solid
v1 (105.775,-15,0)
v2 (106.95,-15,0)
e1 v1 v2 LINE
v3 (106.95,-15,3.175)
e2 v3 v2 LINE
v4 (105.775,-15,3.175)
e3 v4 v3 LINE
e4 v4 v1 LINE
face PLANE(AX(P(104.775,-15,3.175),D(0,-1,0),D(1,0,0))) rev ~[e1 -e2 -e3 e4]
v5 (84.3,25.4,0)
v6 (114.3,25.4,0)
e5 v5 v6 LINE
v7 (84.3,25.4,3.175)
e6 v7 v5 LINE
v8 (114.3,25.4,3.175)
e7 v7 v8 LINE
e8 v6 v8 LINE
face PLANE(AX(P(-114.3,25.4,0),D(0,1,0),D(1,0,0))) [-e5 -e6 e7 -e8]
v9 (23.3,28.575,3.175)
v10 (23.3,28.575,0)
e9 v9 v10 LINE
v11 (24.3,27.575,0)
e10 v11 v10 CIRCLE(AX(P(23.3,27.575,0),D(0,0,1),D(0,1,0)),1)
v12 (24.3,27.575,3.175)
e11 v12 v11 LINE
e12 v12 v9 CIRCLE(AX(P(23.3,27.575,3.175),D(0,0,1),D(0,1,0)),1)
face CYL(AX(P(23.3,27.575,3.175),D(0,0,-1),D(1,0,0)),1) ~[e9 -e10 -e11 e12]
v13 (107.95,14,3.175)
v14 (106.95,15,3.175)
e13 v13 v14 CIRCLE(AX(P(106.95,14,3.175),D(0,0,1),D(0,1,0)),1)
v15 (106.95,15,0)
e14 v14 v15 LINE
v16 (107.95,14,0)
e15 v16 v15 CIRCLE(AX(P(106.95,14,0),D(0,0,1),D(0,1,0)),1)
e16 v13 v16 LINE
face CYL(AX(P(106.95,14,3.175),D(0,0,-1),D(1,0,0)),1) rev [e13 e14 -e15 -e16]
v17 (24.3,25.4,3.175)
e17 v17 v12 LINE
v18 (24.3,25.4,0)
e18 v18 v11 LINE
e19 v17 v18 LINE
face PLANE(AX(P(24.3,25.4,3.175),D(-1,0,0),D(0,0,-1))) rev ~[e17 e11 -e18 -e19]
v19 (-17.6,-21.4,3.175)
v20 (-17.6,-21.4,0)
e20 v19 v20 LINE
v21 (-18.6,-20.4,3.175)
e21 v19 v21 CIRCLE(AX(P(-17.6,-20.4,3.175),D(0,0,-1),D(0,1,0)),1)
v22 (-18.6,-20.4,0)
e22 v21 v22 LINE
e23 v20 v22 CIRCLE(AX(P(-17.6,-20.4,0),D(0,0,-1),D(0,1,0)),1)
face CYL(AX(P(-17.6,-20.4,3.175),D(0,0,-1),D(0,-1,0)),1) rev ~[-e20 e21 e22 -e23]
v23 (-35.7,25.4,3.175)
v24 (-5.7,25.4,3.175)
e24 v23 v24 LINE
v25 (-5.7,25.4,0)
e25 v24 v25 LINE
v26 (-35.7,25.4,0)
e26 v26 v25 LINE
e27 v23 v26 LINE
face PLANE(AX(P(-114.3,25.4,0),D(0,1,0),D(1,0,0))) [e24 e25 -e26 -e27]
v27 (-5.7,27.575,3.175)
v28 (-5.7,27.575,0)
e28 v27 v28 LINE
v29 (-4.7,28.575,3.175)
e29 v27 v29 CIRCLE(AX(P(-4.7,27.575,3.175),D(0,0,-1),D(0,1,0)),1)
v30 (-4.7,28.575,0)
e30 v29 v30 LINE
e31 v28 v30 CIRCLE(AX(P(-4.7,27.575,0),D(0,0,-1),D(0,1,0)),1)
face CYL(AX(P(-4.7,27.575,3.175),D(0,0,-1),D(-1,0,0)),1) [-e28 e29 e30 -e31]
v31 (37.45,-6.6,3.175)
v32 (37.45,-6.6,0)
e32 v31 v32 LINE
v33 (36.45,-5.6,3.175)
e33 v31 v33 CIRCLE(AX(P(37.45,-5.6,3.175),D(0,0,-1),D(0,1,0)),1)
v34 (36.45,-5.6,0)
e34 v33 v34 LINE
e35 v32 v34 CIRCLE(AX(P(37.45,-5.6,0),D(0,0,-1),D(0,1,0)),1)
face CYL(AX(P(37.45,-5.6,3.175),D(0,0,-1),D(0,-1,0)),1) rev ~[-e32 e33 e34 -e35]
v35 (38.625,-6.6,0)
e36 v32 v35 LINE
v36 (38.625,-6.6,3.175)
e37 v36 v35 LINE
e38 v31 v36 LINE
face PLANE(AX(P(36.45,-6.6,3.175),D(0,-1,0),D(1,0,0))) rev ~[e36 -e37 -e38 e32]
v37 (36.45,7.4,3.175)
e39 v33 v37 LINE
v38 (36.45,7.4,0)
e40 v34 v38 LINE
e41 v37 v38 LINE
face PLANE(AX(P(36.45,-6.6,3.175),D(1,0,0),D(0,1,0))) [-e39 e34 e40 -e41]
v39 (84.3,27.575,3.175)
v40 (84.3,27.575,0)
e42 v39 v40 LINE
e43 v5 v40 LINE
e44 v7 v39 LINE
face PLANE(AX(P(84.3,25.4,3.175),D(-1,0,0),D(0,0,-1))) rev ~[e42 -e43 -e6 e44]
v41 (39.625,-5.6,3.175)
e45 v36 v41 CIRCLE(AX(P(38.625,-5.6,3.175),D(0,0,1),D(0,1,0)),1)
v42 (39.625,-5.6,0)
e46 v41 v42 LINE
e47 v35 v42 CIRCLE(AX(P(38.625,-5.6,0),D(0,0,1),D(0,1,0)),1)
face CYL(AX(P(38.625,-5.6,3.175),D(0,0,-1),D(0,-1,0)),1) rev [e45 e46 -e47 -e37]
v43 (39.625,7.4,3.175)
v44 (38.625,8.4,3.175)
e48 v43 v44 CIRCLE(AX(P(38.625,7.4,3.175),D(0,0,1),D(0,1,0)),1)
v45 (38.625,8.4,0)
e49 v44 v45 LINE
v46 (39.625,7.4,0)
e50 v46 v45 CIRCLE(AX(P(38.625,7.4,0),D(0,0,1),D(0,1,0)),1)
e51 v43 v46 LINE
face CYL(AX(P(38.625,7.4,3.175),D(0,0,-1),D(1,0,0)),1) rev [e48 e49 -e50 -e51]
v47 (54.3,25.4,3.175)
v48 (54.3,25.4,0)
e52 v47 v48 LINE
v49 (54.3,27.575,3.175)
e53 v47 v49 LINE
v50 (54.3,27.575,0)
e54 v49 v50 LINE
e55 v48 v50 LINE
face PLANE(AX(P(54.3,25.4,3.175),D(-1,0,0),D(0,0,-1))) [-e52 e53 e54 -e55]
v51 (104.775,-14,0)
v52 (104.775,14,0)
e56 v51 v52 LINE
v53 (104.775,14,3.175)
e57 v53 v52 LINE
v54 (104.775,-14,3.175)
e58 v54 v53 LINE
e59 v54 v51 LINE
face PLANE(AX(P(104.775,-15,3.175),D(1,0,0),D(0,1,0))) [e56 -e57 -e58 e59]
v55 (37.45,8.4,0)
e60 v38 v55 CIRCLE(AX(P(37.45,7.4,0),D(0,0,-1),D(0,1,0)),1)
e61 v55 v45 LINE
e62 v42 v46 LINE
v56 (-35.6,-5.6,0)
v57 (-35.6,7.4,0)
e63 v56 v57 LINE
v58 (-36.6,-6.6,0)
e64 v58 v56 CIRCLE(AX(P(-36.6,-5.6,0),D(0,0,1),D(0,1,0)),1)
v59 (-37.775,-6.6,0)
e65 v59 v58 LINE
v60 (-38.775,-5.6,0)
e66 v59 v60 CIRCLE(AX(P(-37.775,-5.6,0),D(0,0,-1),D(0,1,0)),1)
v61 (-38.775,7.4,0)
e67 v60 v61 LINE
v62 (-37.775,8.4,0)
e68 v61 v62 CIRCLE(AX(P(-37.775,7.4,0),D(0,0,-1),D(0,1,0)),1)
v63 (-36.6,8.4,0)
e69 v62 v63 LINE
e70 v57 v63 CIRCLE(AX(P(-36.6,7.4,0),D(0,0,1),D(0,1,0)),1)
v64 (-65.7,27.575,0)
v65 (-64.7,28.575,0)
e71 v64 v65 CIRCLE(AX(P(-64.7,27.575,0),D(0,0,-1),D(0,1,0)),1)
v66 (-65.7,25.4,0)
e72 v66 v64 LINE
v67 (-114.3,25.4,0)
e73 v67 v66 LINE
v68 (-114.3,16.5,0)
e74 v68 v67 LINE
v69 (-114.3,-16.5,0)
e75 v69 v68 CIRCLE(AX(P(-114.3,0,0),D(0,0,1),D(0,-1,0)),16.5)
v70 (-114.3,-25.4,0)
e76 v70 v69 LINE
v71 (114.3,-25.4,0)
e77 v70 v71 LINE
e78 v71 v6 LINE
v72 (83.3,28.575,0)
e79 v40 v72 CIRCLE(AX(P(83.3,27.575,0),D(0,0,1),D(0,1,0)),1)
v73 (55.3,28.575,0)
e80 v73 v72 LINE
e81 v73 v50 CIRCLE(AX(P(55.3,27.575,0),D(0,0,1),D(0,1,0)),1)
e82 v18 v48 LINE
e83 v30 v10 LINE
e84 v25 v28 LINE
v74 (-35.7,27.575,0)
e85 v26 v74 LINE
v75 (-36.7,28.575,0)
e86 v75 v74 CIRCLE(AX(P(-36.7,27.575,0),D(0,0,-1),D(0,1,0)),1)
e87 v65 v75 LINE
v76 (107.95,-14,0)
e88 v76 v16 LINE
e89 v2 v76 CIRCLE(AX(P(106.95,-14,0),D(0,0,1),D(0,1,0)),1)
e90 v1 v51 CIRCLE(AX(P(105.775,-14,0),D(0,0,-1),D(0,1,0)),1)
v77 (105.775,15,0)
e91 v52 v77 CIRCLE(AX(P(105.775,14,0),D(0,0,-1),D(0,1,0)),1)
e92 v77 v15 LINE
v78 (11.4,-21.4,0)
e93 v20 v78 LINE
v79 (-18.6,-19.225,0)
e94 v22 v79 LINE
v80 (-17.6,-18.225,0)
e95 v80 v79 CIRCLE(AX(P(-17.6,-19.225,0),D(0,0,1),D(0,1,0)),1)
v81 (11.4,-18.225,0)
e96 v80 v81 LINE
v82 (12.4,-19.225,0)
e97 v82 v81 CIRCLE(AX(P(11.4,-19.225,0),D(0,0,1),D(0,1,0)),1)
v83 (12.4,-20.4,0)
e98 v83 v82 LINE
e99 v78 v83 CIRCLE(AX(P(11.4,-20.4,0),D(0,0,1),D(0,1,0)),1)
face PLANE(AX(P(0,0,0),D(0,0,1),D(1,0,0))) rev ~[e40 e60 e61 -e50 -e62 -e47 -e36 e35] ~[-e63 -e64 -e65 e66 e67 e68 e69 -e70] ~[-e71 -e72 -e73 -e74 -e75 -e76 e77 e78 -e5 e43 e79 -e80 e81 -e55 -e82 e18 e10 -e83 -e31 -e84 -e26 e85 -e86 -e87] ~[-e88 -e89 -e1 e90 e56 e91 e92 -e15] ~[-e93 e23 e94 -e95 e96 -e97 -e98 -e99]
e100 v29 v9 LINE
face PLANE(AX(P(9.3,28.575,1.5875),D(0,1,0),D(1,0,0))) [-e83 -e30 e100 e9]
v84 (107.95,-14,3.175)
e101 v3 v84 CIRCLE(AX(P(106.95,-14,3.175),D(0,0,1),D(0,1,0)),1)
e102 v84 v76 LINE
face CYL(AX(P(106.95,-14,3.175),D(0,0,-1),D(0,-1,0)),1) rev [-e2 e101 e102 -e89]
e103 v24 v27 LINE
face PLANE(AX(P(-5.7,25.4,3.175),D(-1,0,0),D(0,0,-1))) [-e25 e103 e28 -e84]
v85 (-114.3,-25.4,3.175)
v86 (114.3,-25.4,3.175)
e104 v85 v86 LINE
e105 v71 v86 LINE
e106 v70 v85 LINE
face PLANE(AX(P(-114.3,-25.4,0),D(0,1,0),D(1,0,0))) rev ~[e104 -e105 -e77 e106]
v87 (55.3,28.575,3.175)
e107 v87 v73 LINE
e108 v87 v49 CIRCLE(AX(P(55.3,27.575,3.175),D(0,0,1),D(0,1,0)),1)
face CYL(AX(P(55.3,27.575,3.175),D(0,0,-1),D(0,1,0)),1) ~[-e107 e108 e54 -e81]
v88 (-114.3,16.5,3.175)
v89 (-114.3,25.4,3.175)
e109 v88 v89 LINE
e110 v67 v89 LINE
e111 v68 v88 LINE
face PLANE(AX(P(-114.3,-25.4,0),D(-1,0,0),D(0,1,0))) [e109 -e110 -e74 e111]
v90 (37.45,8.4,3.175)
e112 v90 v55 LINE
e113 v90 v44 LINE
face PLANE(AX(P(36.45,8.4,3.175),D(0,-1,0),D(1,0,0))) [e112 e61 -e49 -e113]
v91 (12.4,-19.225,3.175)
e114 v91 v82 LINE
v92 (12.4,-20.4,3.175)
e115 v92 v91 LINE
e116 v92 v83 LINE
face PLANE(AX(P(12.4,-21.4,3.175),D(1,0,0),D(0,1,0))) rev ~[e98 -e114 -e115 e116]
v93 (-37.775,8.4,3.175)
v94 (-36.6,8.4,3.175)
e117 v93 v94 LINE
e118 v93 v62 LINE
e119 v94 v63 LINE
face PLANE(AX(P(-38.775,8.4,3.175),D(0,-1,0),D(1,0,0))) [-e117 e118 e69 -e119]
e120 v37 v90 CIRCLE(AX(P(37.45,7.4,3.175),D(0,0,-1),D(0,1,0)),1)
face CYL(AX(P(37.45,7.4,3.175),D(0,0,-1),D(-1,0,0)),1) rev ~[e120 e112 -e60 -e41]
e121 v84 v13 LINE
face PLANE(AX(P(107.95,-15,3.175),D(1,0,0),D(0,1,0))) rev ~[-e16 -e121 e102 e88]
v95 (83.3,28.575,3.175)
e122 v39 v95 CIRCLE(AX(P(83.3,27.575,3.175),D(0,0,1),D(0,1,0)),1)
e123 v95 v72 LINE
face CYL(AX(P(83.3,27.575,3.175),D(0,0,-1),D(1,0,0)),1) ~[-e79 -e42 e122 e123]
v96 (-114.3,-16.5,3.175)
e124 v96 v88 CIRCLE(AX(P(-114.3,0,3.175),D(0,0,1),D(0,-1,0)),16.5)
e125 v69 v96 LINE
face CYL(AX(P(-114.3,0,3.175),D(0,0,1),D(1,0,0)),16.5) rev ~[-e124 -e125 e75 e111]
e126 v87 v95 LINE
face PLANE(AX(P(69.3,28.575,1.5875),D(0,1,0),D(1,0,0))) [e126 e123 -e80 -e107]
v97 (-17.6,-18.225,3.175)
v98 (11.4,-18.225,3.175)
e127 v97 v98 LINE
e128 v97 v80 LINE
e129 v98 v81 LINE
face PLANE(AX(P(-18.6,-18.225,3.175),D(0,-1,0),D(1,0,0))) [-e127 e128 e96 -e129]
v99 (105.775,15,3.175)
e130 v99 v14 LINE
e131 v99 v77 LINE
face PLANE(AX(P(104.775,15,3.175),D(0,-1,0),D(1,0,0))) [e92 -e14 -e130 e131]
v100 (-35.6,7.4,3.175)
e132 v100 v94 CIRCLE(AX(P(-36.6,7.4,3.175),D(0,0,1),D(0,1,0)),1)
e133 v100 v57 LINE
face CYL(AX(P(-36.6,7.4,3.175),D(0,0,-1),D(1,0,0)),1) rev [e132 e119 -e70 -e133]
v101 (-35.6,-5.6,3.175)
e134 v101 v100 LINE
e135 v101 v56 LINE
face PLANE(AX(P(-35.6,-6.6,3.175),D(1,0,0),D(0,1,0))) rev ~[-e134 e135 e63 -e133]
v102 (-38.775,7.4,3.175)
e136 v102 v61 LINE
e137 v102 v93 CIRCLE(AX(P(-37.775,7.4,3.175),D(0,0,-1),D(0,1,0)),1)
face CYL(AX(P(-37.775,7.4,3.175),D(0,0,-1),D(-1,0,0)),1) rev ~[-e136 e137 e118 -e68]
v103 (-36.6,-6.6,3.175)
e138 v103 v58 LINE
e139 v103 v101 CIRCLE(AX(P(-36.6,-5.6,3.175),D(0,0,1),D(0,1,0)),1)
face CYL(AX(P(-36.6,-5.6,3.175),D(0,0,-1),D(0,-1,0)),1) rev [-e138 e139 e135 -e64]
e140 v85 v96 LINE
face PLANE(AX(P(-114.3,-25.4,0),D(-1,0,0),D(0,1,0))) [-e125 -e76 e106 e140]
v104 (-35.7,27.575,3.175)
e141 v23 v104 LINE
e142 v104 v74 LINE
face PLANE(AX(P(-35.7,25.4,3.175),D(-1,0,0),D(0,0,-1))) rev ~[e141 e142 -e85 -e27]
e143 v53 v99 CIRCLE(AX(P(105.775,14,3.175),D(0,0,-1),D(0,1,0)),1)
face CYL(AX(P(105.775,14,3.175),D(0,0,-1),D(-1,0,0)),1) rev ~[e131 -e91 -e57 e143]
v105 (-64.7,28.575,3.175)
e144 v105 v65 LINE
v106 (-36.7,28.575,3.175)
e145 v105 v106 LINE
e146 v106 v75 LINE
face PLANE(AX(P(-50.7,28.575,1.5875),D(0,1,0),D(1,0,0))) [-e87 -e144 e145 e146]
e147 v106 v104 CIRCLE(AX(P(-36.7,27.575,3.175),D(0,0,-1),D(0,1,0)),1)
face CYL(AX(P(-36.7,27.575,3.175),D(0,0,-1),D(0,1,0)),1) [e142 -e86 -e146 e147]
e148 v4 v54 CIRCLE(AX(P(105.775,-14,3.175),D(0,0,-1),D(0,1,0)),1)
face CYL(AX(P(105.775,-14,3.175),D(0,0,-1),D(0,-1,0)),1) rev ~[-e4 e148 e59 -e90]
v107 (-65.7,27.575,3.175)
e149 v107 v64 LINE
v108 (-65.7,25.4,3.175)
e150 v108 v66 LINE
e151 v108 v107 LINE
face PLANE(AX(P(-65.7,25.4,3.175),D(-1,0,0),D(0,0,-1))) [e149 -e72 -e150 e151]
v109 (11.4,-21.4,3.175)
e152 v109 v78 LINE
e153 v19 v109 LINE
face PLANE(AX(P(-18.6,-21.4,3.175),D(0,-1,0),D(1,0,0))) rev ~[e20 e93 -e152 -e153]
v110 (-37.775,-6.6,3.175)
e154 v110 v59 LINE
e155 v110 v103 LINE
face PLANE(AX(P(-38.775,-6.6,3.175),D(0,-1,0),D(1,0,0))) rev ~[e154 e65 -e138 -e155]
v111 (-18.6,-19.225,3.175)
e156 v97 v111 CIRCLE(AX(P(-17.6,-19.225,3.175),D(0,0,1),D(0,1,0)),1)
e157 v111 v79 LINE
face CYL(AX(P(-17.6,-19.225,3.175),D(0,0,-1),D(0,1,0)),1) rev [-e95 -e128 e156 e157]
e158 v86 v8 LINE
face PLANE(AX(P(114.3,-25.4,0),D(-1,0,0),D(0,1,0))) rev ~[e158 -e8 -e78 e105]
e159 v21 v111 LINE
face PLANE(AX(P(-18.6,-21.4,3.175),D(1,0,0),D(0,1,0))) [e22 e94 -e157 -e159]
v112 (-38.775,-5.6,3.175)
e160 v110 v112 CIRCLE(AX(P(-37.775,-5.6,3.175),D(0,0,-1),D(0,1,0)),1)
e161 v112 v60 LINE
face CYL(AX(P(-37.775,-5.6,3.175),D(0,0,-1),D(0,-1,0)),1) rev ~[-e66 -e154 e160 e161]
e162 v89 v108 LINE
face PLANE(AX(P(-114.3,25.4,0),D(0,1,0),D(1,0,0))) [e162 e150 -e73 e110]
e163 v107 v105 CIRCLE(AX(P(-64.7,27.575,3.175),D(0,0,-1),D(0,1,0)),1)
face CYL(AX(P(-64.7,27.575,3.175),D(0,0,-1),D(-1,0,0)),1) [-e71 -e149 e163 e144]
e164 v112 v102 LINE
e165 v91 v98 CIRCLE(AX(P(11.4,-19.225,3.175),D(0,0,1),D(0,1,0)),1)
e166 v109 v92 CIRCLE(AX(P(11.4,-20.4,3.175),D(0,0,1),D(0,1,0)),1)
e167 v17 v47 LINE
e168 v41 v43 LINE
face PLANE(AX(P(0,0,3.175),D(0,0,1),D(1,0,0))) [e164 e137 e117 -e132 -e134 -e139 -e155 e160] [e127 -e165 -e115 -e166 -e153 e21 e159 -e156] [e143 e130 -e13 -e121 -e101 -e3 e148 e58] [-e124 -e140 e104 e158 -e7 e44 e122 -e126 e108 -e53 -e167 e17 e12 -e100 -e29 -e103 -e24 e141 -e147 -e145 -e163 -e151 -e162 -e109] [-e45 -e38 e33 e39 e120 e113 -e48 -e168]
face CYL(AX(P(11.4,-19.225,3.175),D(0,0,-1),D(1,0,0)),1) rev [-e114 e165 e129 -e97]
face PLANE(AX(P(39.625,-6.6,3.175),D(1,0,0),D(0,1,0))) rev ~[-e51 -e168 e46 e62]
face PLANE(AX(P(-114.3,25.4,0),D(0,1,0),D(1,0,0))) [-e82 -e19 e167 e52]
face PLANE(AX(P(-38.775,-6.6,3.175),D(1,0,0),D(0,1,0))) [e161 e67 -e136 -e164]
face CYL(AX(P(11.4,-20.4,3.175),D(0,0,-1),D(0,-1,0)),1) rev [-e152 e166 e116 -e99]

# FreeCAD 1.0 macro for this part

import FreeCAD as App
import Part
import Sketcher
from FreeCAD import Vector


def edges_at(feature, points):
    """Names of the edges that pass closest to the given points."""
    edges = feature.Shape.Edges
    near = lambda p: min(range(len(edges)), key=lambda i: edges[i].distToShape(Part.Vertex(*p))[0])
    return sorted({f"Edge{near(p) + 1}" for p in points})


def add_polygon(sketch, points):
    """Adds a closed chain of lines whose ends are joined by coincident constraints."""
    first, n = sketch.GeometryCount, len(points)
    for a, b in zip(points, points[1:] + points[:1]):
        sketch.addGeometry(Part.LineSegment(App.Vector(*a, 0), App.Vector(*b, 0)), False)
    for i in range(n):
        sketch.addConstraint(Sketcher.Constraint("Coincident", first + i, 2, first + (i + 1) % n, 1))

doc = App.newDocument("Part")
body = doc.addObject("PartDesign::Body", "Body")

# Sketch on XY plane
sketch1 = doc.addObject("Sketcher::SketchObject", "Sketch")
body.addObject(sketch1)
sketch1.AttachmentSupport = (doc.XY_Plane, [""])
sketch1.MapMode = "FlatFace"
add_polygon(sketch1, [(-114.3, 25.4), (-114.3, -25.4), (114.3, -25.4), (114.3, 25.4)])  # lines 0-3
sketch1.addConstraint([
    Sketcher.Constraint("Vertical", 0),
    Sketcher.Constraint("Horizontal", 1),
    Sketcher.Constraint("Vertical", 2),
    Sketcher.Constraint("Horizontal", 3),
    Sketcher.Constraint("Symmetric", 0, 2, 2, 2, -1, 1),
    Sketcher.Constraint("DistanceX", 1, 1, 1, 2, 228.6),
    Sketcher.Constraint("DistanceY", 0, 2, 0, 1, 50.8),
])
pad1 = doc.addObject("PartDesign::Pad", "Pad")
body.addObject(pad1)
pad1.Profile = sketch1
pad1.Length = 3.175

# Sketch on XZ plane
sketch2 = doc.addObject("Sketcher::SketchObject", "Sketch001")
body.addObject(sketch2)
sketch2.AttachmentSupport = (doc.XZ_Plane, [""])
sketch2.MapMode = "FlatFace"
sketch2.AttachmentOffset = App.Placement(Vector(0, 0, -25.4), App.Rotation())
add_polygon(sketch2, [(54.3, 0), (54.3, 3.175), (84.3, 3.175), (84.3, 0)])  # lines 0-3
add_polygon(sketch2, [(-5.7, 0), (-5.7, 3.175), (24.3, 3.175), (24.3, 0)])  # lines 4-7
add_polygon(sketch2, [(-65.7, 0), (-65.7, 3.175), (-35.7, 3.175), (-35.7, 0)])  # lines 8-11
sketch2.addConstraint([
    Sketcher.Constraint("Vertical", 0),
    Sketcher.Constraint("Horizontal", 1),
    Sketcher.Constraint("Vertical", 2),
    Sketcher.Constraint("Horizontal", 3),
    Sketcher.Constraint("Vertical", 4),
    Sketcher.Constraint("Horizontal", 5),
    Sketcher.Constraint("Vertical", 6),
    Sketcher.Constraint("Horizontal", 7),
    Sketcher.Constraint("Vertical", 8),
    Sketcher.Constraint("Horizontal", 9),
    Sketcher.Constraint("Vertical", 10),
    Sketcher.Constraint("Horizontal", 11),
    Sketcher.Constraint("PointOnObject", 2, 2, -1),
    Sketcher.Constraint("PointOnObject", 6, 2, -1),
    Sketcher.Constraint("PointOnObject", 10, 2, -1),
    Sketcher.Constraint("Horizontal", 1, 2, 4, 2),
    Sketcher.Constraint("Horizontal", 5, 2, 8, 2),
    Sketcher.Constraint("Equal", 3, 5),
    Sketcher.Constraint("Equal", 7, 9),
    Sketcher.Constraint("DistanceX", 1, 1, 1, 2, 30.0),
    Sketcher.Constraint("DistanceX", 4, 2, 0, 2, 60.0),
    Sketcher.Constraint("DistanceX", 8, 2, 4, 2, 60.0),
    Sketcher.Constraint("DistanceX", -1, 1, 0, 2, 54.3),
    Sketcher.Constraint("DistanceY", 0, 1, 0, 2, 3.175),
])
pad2 = doc.addObject("PartDesign::Pad", "Pad001")
body.addObject(pad2)
pad2.Profile = sketch2
pad2.Length = 3.175
pad2.Reversed = True

# Sketch on XY plane
sketch3 = doc.addObject("Sketcher::SketchObject", "Sketch002")
body.addObject(sketch3)
sketch3.AttachmentSupport = (doc.XY_Plane, [""])
sketch3.MapMode = "FlatFace"
sketch3.AttachmentOffset = App.Placement(Vector(0, 0, 3.175), App.Rotation())
sketch3.addGeometry(Part.Circle(Vector(-114.3, 0, 0), Vector(0, 0, 1), 16.5), False)
sketch3.addConstraint([
    Sketcher.Constraint("PointOnObject", 0, 3, -1),
    Sketcher.Constraint("Diameter", 0, 33.0),
    Sketcher.Constraint("DistanceX", 0, 3, -1, 1, 114.3),
])
pocket1 = doc.addObject("PartDesign::Pocket", "Pocket")
body.addObject(pocket1)
pocket1.Profile = sketch3
pocket1.Type = "ThroughAll"

# Sketch on XY plane
sketch4 = doc.addObject("Sketcher::SketchObject", "Sketch003")
body.addObject(sketch4)
sketch4.AttachmentSupport = (doc.XY_Plane, [""])
sketch4.MapMode = "FlatFace"
sketch4.AttachmentOffset = App.Placement(Vector(0, 0, 3.175), App.Rotation())
add_polygon(sketch4, [(104.775, 15), (104.775, -15), (107.95, -15), (107.95, 15)])  # lines 0-3
add_polygon(sketch4, [(36.45, 8.4), (36.45, -6.6), (39.625, -6.6), (39.625, 8.4)])  # lines 4-7
add_polygon(sketch4, [(-38.775, 8.4), (-38.775, -6.6), (-35.6, -6.6), (-35.6, 8.4)])  # lines 8-11
sketch4.addConstraint([
    Sketcher.Constraint("Vertical", 0),
    Sketcher.Constraint("Horizontal", 1),
    Sketcher.Constraint("Vertical", 2),
    Sketcher.Constraint("Horizontal", 3),
    Sketcher.Constraint("Vertical", 4),
    Sketcher.Constraint("Horizontal", 5),
    Sketcher.Constraint("Vertical", 6),
    Sketcher.Constraint("Horizontal", 7),
    Sketcher.Constraint("Vertical", 8),
    Sketcher.Constraint("Horizontal", 9),
    Sketcher.Constraint("Vertical", 10),
    Sketcher.Constraint("Horizontal", 11),
    Sketcher.Constraint("Horizontal", 5, 2, 8, 2),
    Sketcher.Constraint("Horizontal", 7, 2, 10, 2),
    Sketcher.Constraint("Equal", 3, 5),
    Sketcher.Constraint("Equal", 7, 9),
    Sketcher.Constraint("DistanceY", 0, 2, 0, 1, 30.0),
    Sketcher.Constraint("DistanceY", 4, 2, 4, 1, 15.0),
    Sketcher.Constraint("DistanceY", 0, 2, -1, 1, 15.0),
    Sketcher.Constraint("DistanceY", 4, 2, -1, 1, 6.6),
    Sketcher.Constraint("DistanceX", 9, 2, -1, 1, 35.6),
    Sketcher.Constraint("DistanceX", 4, 2, 1, 2, 71.5),
    Sketcher.Constraint("DistanceX", 8, 2, 5, 2, 78.4),
    Sketcher.Constraint("DistanceX", 1, 1, 1, 2, 3.175),
])
pocket2 = doc.addObject("PartDesign::Pocket", "Pocket001")
body.addObject(pocket2)
pocket2.Profile = sketch4
pocket2.Length = 10

# Sketch on XY plane
sketch5 = doc.addObject("Sketcher::SketchObject", "Sketch004")
body.addObject(sketch5)
sketch5.AttachmentSupport = (doc.XY_Plane, [""])
sketch5.MapMode = "FlatFace"
sketch5.AttachmentOffset = App.Placement(Vector(0, 0, 3.175), App.Rotation())
add_polygon(sketch5, [(-18.6, -18.225), (-18.6, -21.4), (12.4, -21.4), (12.4, -18.225)])  # lines 0-3
sketch5.addConstraint([
    Sketcher.Constraint("Vertical", 0),
    Sketcher.Constraint("Horizontal", 1),
    Sketcher.Constraint("Vertical", 2),
    Sketcher.Constraint("Horizontal", 3),
    Sketcher.Constraint("DistanceX", 1, 1, 1, 2, 31.0),
    Sketcher.Constraint("DistanceX", 0, 2, -1, 1, 18.6),
    Sketcher.Constraint("DistanceY", 0, 2, -1, 1, 21.4),
    Sketcher.Constraint("DistanceY", 0, 2, 0, 1, 3.175),
])
pocket3 = doc.addObject("PartDesign::Pocket", "Pocket002")
body.addObject(pocket3)
pocket3.Profile = sketch5
pocket3.Length = 10
doc.recompute()

fillet = doc.addObject("PartDesign::Fillet", "Fillet")
body.addObject(fillet)
fillet.Base = (pocket3, edges_at(pocket3, [
    (-38.775, -6.6, 1.587),
    (-38.775, 8.4, 1.587),
    (-35.6, 8.4, 1.587),
    (-35.6, -6.6, 1.587),
    (104.775, -15, 1.587),
    (104.775, 15, 1.587),
    (107.95, 15, 1.587),
    (107.95, -15, 1.587),
    (39.625, 8.4, 1.587),
    (39.625, -6.6, 1.587),
    (36.45, -6.6, 1.587),
    (36.45, 8.4, 1.587),
    (12.4, -18.225, 1.587),
    (12.4, -21.4, 1.587),
    (-18.6, -21.4, 1.587),
    (-18.6, -18.225, 1.587),
    (84.3, 28.575, 1.587),
    (54.3, 28.575, 1.587),
    (-5.7, 28.575, 1.587),
    (24.3, 28.575, 1.587),
    (-65.7, 28.575, 1.587),
    (-35.7, 28.575, 1.587),
]))
fillet.Radius = 1

doc.recompute()
